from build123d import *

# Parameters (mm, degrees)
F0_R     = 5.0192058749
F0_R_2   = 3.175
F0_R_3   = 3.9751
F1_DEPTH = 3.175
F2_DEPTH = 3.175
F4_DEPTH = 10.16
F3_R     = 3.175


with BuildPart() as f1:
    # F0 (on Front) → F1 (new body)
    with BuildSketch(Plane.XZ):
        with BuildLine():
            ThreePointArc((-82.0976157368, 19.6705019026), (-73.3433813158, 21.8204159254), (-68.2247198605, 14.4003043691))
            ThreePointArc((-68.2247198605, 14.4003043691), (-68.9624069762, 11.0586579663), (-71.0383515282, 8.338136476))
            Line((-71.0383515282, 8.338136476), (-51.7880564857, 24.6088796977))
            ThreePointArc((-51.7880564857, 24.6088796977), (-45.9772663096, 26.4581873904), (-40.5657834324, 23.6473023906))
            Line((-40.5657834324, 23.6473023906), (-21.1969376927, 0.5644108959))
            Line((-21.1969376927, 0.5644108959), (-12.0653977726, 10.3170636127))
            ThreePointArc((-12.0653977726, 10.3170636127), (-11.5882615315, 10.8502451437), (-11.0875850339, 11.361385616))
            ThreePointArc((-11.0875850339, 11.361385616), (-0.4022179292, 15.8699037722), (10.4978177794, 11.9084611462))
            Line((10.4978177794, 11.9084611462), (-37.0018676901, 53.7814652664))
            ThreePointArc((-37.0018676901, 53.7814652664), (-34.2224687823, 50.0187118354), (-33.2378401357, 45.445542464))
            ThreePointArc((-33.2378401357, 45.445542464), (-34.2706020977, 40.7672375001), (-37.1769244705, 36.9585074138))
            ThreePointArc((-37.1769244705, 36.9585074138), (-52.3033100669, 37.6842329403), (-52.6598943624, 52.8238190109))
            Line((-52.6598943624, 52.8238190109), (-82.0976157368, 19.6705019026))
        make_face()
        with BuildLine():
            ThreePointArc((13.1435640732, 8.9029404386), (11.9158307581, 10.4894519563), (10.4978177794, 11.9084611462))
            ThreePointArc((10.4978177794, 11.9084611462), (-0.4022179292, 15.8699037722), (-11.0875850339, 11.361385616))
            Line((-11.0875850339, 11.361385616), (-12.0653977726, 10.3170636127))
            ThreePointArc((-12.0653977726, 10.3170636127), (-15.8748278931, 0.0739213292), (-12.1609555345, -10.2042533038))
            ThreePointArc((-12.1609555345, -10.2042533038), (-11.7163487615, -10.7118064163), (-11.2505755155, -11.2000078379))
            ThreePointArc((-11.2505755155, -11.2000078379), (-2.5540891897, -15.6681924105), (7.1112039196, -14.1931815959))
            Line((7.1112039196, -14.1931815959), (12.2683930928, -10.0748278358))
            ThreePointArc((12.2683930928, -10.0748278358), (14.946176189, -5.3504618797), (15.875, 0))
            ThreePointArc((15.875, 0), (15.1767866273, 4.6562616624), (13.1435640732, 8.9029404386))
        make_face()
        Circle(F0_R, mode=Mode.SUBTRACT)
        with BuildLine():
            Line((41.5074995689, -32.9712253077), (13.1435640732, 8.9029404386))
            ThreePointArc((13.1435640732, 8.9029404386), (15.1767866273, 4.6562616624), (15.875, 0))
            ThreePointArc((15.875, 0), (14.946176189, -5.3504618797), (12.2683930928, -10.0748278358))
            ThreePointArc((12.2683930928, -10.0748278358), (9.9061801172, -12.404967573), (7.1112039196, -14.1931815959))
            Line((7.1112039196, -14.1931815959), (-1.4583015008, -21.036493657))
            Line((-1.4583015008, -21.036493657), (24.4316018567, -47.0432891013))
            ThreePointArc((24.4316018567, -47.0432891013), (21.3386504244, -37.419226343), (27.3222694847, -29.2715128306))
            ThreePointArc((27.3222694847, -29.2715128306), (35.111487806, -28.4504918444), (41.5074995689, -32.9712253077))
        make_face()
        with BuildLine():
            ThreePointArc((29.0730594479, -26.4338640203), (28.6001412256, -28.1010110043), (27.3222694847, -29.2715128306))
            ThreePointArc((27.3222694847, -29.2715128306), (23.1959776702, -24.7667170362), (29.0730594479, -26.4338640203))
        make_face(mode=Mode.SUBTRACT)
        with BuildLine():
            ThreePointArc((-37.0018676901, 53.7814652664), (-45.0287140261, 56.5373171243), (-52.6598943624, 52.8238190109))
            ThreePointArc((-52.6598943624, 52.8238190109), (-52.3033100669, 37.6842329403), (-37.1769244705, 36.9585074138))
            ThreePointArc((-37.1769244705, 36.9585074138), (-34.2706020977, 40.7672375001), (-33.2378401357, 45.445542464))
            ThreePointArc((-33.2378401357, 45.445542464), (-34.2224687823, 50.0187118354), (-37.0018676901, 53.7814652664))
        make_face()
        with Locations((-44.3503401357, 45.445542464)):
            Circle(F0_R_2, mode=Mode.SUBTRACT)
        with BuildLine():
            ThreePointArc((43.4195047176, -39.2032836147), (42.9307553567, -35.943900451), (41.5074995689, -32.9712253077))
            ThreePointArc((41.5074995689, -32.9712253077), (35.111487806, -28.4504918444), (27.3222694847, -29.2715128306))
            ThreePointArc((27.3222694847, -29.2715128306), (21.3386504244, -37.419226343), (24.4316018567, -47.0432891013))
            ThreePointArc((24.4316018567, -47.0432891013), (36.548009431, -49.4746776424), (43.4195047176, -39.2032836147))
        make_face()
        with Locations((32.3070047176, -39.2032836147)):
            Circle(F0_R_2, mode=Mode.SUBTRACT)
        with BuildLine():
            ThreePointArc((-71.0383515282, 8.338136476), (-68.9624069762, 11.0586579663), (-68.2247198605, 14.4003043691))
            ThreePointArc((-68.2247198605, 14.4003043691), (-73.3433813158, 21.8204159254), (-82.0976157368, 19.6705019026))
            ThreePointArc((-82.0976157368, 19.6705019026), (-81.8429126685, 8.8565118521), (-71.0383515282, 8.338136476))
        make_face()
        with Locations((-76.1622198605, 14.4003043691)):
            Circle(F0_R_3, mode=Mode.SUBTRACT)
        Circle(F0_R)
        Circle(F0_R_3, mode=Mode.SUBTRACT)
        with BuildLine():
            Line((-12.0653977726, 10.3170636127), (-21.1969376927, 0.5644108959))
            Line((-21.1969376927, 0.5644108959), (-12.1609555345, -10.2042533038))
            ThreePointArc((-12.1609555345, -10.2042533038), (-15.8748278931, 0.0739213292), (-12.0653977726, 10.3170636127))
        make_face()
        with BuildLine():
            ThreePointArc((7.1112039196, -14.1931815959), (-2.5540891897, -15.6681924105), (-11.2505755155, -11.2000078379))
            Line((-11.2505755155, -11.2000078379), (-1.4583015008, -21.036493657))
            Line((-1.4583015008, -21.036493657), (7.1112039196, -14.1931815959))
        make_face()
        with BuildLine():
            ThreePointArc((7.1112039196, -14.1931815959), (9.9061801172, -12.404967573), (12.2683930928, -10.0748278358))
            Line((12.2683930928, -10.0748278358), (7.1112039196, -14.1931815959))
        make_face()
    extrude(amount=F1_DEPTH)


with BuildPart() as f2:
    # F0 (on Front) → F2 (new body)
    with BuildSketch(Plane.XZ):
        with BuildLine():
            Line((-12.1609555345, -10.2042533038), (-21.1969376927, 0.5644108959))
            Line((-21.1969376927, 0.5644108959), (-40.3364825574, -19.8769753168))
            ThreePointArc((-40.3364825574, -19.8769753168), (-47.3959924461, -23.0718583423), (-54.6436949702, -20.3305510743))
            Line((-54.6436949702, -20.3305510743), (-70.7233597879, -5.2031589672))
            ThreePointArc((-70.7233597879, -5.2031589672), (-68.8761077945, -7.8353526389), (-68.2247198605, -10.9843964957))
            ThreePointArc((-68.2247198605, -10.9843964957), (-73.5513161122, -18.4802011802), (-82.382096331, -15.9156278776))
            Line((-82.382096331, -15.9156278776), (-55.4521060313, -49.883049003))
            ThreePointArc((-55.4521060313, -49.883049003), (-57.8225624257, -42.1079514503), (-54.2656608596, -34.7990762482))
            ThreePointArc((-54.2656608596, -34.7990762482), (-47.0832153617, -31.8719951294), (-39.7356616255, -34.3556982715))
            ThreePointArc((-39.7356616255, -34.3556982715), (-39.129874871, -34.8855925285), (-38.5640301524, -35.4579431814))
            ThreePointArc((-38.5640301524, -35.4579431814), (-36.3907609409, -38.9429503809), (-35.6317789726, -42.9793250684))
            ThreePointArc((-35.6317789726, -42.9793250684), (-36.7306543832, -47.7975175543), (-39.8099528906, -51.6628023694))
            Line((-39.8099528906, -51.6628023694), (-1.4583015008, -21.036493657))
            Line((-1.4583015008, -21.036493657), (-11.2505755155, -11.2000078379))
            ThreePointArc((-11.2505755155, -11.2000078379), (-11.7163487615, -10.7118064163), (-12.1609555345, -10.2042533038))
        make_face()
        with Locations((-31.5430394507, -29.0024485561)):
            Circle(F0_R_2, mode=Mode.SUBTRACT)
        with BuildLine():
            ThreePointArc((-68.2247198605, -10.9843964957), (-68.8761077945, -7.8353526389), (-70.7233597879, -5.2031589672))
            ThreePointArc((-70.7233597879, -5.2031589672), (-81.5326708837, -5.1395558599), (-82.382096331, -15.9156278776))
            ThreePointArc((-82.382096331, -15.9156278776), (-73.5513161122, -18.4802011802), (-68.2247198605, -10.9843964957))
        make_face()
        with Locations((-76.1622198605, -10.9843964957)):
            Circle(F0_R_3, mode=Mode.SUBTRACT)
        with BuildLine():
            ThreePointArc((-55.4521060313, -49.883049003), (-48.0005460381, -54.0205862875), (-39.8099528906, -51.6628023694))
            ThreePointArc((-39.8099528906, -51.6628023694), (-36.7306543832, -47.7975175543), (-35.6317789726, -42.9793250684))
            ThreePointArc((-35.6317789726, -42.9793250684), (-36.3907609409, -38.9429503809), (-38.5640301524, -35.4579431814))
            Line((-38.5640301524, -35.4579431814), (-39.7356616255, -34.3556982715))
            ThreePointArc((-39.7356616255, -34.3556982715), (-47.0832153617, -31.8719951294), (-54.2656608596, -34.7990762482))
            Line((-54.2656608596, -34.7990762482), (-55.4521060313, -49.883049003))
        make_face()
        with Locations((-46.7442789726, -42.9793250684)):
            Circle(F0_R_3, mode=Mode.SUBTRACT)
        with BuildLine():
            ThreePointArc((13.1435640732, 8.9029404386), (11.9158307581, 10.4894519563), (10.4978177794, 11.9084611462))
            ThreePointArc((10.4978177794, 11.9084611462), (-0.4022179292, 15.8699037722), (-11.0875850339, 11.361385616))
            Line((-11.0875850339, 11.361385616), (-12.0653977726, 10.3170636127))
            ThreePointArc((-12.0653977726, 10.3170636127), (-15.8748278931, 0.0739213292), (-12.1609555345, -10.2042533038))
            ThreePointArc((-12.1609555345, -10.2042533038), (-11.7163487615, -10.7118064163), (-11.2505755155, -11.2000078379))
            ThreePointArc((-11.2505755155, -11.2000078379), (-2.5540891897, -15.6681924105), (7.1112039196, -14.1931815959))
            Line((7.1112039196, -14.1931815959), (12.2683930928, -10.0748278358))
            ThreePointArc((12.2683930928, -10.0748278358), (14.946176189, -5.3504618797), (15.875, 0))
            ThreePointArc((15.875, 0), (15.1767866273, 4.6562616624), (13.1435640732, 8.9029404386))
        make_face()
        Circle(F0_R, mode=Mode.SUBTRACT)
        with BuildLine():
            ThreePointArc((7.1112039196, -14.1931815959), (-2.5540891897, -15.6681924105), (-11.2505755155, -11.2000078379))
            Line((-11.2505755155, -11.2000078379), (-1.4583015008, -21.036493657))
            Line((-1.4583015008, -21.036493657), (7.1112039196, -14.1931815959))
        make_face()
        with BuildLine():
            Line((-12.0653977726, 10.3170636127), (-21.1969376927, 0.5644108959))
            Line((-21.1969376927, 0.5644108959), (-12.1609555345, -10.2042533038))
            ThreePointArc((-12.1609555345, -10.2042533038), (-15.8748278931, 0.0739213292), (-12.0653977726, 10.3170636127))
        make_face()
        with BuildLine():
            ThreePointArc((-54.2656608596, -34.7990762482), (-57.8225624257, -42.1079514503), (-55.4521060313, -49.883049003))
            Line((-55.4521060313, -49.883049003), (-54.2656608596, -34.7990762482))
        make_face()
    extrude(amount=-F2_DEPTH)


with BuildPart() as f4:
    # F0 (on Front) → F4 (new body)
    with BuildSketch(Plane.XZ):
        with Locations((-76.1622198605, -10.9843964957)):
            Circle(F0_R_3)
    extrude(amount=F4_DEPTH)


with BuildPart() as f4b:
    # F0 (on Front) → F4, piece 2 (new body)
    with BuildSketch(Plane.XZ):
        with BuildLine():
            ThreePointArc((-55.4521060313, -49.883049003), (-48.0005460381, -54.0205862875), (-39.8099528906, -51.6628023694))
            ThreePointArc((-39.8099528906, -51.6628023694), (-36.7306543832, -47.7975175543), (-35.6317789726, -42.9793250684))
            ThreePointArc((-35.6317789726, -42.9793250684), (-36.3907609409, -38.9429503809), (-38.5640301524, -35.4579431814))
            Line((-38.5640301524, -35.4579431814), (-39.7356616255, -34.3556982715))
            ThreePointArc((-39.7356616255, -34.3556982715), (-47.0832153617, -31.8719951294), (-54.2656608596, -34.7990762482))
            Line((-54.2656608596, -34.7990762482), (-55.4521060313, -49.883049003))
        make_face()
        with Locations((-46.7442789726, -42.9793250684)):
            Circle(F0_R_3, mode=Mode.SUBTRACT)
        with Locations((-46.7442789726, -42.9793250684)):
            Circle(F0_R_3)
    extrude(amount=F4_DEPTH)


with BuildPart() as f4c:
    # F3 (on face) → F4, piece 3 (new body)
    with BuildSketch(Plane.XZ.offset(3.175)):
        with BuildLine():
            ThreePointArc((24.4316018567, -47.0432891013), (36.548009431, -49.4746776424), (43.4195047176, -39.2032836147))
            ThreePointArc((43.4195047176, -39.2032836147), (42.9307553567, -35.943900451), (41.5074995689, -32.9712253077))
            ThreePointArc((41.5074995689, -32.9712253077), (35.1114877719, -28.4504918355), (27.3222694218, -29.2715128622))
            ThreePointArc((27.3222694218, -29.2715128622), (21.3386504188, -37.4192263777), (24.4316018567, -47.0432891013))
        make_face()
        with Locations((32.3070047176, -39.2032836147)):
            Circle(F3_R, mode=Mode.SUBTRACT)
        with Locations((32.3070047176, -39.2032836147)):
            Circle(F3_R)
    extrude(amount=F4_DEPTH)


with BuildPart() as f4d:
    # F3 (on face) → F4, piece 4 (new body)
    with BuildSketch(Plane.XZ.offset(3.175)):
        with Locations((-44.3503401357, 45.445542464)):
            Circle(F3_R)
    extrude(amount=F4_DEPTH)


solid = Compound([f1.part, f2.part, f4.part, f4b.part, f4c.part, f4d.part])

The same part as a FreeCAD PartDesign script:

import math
import FreeCAD as App
import Part
import Sketcher

V = App.Vector
Q = App.Units.Quantity

doc = App.newDocument("Part")
body = doc.addObject("PartDesign::Body", "Body")

# Sketch on XZ plane
sketch1 = doc.addObject("Sketcher::SketchObject", "Sketch")
body.addObject(sketch1)
sketch1.AttachmentSupport = (doc.XZ_Plane, [""])
sketch1.MapMode = "FlatFace"
sketch1.addGeometry([
    Part.ArcOfCircle(Part.Circle(V(0, 0, 0), V(0, 0, 1), 15.875), math.radians(-140), math.radians(-135.129053)),  # 0
    Part.LineSegment(V(-11.250576, -11.200008, 0), V(-1.458302, -21.036494, 0)),  # 1
    Part.LineSegment(V(-1.458302, -21.036494, 0), V(24.431602, -47.043289, 0)),  # 2
    Part.ArcOfCircle(Part.Circle(V(32.307005, -39.203284, 0), V(0, 0, 1), 11.1125), math.radians(-135.129053), math.radians(0)),  # 3
    Part.ArcOfCircle(Part.Circle(V(32.307005, -39.203284, 0), V(0, 0, 1), 11.1125), math.radians(0), math.radians(34.112189)),  # 4
    Part.LineSegment(V(41.5075, -32.971225, 0), V(13.143564, 8.90294, 0)),  # 5
    Part.ArcOfCircle(Part.Circle(V(0, 0, 0), V(0, 0, 1), 15.875), math.radians(34.112189), math.radians(48.602445)),  # 6
    Part.LineSegment(V(10.497818, 11.908461, 0), V(-37.001868, 53.781465, 0)),  # 7
    Part.ArcOfCircle(Part.Circle(V(-44.35034, 45.445542, 0), V(0, 0, 1), 11.1125), math.radians(48.602445), math.radians(138.397266)),  # 8
    Part.LineSegment(V(-52.659894, 52.823819, 0), V(-82.097616, 19.670502, 0)),  # 9
    Part.ArcOfCircle(Part.Circle(V(-76.16222, 14.400304, 0), V(0, 0, 1), 7.9375), math.radians(138.397266), math.radians(310.205179)),  # 10
    Part.LineSegment(V(-71.038352, 8.338136, 0), V(-51.788056, 24.60888, 0)),  # 11
    Part.ArcOfCircle(Part.Circle(V(-46.65599, 18.537012, 0), V(0, 0, 1), 7.9502), math.radians(40), math.radians(130.205179)),  # 12
    Part.LineSegment(V(-40.565783, 23.647302, 0), V(-21.196938, 0.564411, 0)),  # 13
    Part.LineSegment(V(-21.196938, 0.564411, 0), V(-12.160956, -10.204253, 0)),  # 14
    Part.Circle(V(32.307005, -39.203284, 0), V(0, 0, 1), 3.175),  # 15
    Part.ArcOfCircle(Part.Circle(V(25.898059, -26.433864, 0), V(0, 0, 1), 3.175), math.radians(-63.348021), math.radians(0)),  # 16
    Part.ArcOfCircle(Part.Circle(V(25.898059, -26.433864, 0), V(0, 0, 1), 3.175), math.radians(0), math.radians(296.651979)),  # 17
    Part.Circle(V(0, 0, 0), V(0, 0, 1), 3.9751),  # 18
    Part.Circle(V(-76.16222, 14.400304, 0), V(0, 0, 1), 3.9751),  # 19
    Part.Circle(V(-44.35034, 45.445542, 0), V(0, 0, 1), 3.175),  # 20
    Part.LineSegment(V(-11.087585, 11.361386, 0), V(-12.065398, 10.317064, 0)),  # 21
    Part.ArcOfCircle(Part.Circle(V(0, 0, 0), V(0, 0, 1), 15.875), math.radians(134.301222), math.radians(139.466407)),  # 22
], False)
sketch1.addConstraint([
    Sketcher.Constraint("Tangent", 0, 2, 1, 1),
    Sketcher.Constraint("Coincident", 1, 2, 2, 1),
    Sketcher.Constraint("Tangent", 2, 2, 3, 1),
    Sketcher.Constraint("Tangent", 3, 2, 4, 1),
    Sketcher.Constraint("Tangent", 4, 2, 5, 1),
    Sketcher.Constraint("Tangent", 5, 2, 6, 1),
    Sketcher.Constraint("Tangent", 6, 2, 7, 1),
    Sketcher.Constraint("Tangent", 7, 2, 8, 1),
    Sketcher.Constraint("Tangent", 8, 2, 9, 1),
    Sketcher.Constraint("Tangent", 9, 2, 10, 1),
    Sketcher.Constraint("Tangent", 10, 2, 11, 1),
    Sketcher.Constraint("Tangent", 11, 2, 12, 2),
    Sketcher.Constraint("Tangent", 12, 1, 13, 1),
    Sketcher.Constraint("Coincident", 13, 2, 14, 1),
    Sketcher.Constraint("Tangent", 14, 2, 0, 1),
    Sketcher.Constraint("Tangent", 16, 1, 17, 2),
    Sketcher.Constraint("Coincident", 17, 1, 16, 2),
    Sketcher.Constraint("Coincident", 21, 1, 22, 1),
    Sketcher.Constraint("Coincident", 22, 2, 21, 2),
    Sketcher.Constraint("Coincident", 0, 3, -1, 1),
    Sketcher.Constraint("Coincident", 6, 3, -1, 1),
    Sketcher.Constraint("Coincident", 18, 3, -1, 1),
    Sketcher.Constraint("Coincident", 22, 3, -1, 1),
    Sketcher.Constraint("Coincident", 15, 3, 3, 3),
    Sketcher.Constraint("Coincident", 19, 3, 10, 3),
    Sketcher.Constraint("Coincident", 20, 3, 8, 3),
    Sketcher.Constraint("Equal", 3, 4),
    Sketcher.Constraint("Equal", 0, 6),
    Sketcher.Constraint("Equal", 4, 8),
    Sketcher.Constraint("Equal", 15, 16),
    Sketcher.Constraint("Equal", 18, 19),
    Sketcher.Constraint("Equal", 17, 20),
    Sketcher.Constraint("Equal", 6, 22),
    Sketcher.Constraint("Parallel", 1, 2),
    Sketcher.Constraint("Parallel", 13, 14),
    Sketcher.Constraint("Horizontal", 15, 3, 3, 2),
    Sketcher.Constraint("Horizontal", 16, 3, 17, 1),
    Sketcher.Constraint("Diameter", 15, Q("0.25 in")),
    Sketcher.Constraint("Diameter", 18, Q("0.313 in")),
    Sketcher.Constraint("Angle", 13, Q("-50 deg")),
    Sketcher.Constraint("Radius", 0, Q("0.625 in")),
    Sketcher.Constraint("Radius", 3, Q("0.4375 in")),
    Sketcher.Constraint("Radius", 10, Q("0.3125 in")),
    Sketcher.Constraint("Radius", 12, Q("0.313 in")),
    Sketcher.Constraint("DistanceX", -1, 1, 6, 2, Q("0.4132999 in")),
    Sketcher.Constraint("DistanceX", 11, 2, -1, 1, Q("2.0388999 in")),
    Sketcher.Constraint("Distance", 2, 36.696601),
    Sketcher.Constraint("DistanceX", 1, 2, -1, 1, 1.458302),
    Sketcher.Constraint("DistanceX", -1, 1, 2, 2, 24.431602),
    Sketcher.Constraint("DistanceY", -1, 1, 9, 2, 19.670502),
    Sketcher.Constraint("Distance", 21, 1.430638),
    Sketcher.Constraint("DistanceX", 8, 3, -1, 1, 44.35034),
    Sketcher.Constraint("DistanceX", 10, 3, -1, 1, 76.16222),
    Sketcher.Constraint("DistanceX", -1, 1, 16, 3, 25.898059),
    Sketcher.Constraint("DistanceY", -1, 1, 13, 2, 0.564411),
    Sketcher.Constraint("DistanceX", -1, 1, 16, 1, 27.322269),
    Sketcher.Constraint("DistanceY", 4, 3, 16, 3, 12.76942),
    Sketcher.Constraint("DistanceX", 13, 2, 22, 2, 9.13154),
])
pad1 = doc.addObject("PartDesign::Pad", "Pad")
body.addObject(pad1)
pad1.Profile = sketch1
pad1.Length = Q("0.125 in")
body2 = doc.addObject("PartDesign::Body", "Body001")

# Sketch on XZ plane
sketch2 = doc.addObject("Sketcher::SketchObject", "Sketch001")
body2.addObject(sketch2)
sketch2.AttachmentSupport = (doc.getObject("XZ_Plane001"), [""])
sketch2.MapMode = "FlatFace"
sketch2.addGeometry([
    Part.LineSegment(V(-82.382096, -15.915628, 0), V(-55.452106, -49.883049, 0)),  # 0
    Part.ArcOfCircle(Part.Circle(V(-46.744279, -42.979325, 0), V(0, 0, 1), 11.1125), math.radians(-141.591978), math.radians(-51.39034)),  # 1
    Part.LineSegment(V(-39.809953, -51.662802, 0), V(-1.458302, -21.036494, 0)),  # 2
    Part.LineSegment(V(-1.458302, -21.036494, 0), V(12.268393, -10.074828, 0)),  # 3
    Part.ArcOfCircle(Part.Circle(V(0, 0, 0), V(0, 0, 1), 15.875), math.radians(-39.392905), math.radians(0)),  # 4
    Part.ArcOfCircle(Part.Circle(V(0, 0, 0), V(0, 0, 1), 15.875), math.radians(0), math.radians(34.112189)),  # 5
    Part.ArcOfCircle(Part.Circle(V(0, 0, 0), V(0, 0, 1), 15.875), math.radians(34.112189), math.radians(48.602445)),  # 6
    Part.ArcOfCircle(Part.Circle(V(0, 0, 0), V(0, 0, 1), 15.875), math.radians(48.602445), math.radians(134.301222)),  # 7
    Part.LineSegment(V(-11.087585, 11.361386, 0), V(-12.065398, 10.317064, 0)),  # 8
    Part.LineSegment(V(-12.065398, 10.317064, 0), V(-21.196938, 0.564411, 0)),  # 9
    Part.LineSegment(V(-21.196938, 0.564411, 0), V(-40.336483, -19.876975, 0)),  # 10
    Part.ArcOfCircle(Part.Circle(V(-47.716339, -12.967116, 0), V(0, 0, 1), 10.109818), math.radians(-133.252181), math.radians(-43.116185)),  # 11
    Part.LineSegment(V(-54.643695, -20.330551, 0), V(-70.72336, -5.203159, 0)),  # 12
    Part.ArcOfCircle(Part.Circle(V(-76.16222, -10.984396, 0), V(0, 0, 1), 7.9375), math.radians(46.747819), math.radians(218.408022)),  # 13
    Part.Circle(V(-46.744279, -42.979325, 0), V(0, 0, 1), 3.9751),  # 14
    Part.ArcOfCircle(Part.Circle(V(-46.744279, -42.979325, 0), V(0, 0, 1), 11.1125), math.radians(42.597182), math.radians(50.898456)),  # 15
    Part.LineSegment(V(-38.56403, -35.457943, 0), V(-39.735662, -34.355698, 0)),  # 16
    Part.Circle(V(-31.543039, -29.002449, 0), V(0, 0, 1), 3.175),  # 17
    Part.Circle(V(-76.16222, -10.984396, 0), V(0, 0, 1), 3.9751),  # 18
    Part.Circle(V(0, 0, 0), V(0, 0, 1), 5.019206),  # 19
], False)
sketch2.addConstraint([
    Sketcher.Constraint("Coincident", 0, 2, 1, 1),
    Sketcher.Constraint("Coincident", 1, 2, 2, 1),
    Sketcher.Constraint("Coincident", 2, 2, 3, 1),
    Sketcher.Constraint("Coincident", 3, 2, 4, 1),
    Sketcher.Constraint("Coincident", 4, 2, 5, 1),
    Sketcher.Constraint("Coincident", 5, 2, 6, 1),
    Sketcher.Constraint("Coincident", 6, 2, 7, 1),
    Sketcher.Constraint("Coincident", 7, 2, 8, 1),
    Sketcher.Constraint("Coincident", 8, 2, 9, 1),
    Sketcher.Constraint("Coincident", 9, 2, 10, 1),
    Sketcher.Constraint("Coincident", 10, 2, 11, 2),
    Sketcher.Constraint("Coincident", 11, 1, 12, 1),
    Sketcher.Constraint("Coincident", 12, 2, 13, 1),
    Sketcher.Constraint("Coincident", 13, 2, 0, 1),
    Sketcher.Constraint("Coincident", 15, 1, 16, 1),
    Sketcher.Constraint("Coincident", 16, 2, 15, 2),
    Sketcher.Constraint("Coincident", 4, 3, -1, 1),
    Sketcher.Constraint("Coincident", 5, 3, -1, 1),
    Sketcher.Constraint("Coincident", 6, 3, -1, 1),
    Sketcher.Constraint("Coincident", 7, 3, -1, 1),
    Sketcher.Constraint("Coincident", 19, 3, -1, 1),
    Sketcher.Constraint("Coincident", 14, 3, 1, 3),
    Sketcher.Constraint("Coincident", 15, 3, 1, 3),
    Sketcher.Constraint("Coincident", 18, 3, 13, 3),
    Sketcher.Constraint("PointOnObject", 4, 2, -1),
    Sketcher.Constraint("Diameter", 17, Q("0.25 in")),
    Sketcher.Constraint("Diameter", 14, Q("0.313 in")),
    Sketcher.Constraint("Diameter", 18, Q("0.313 in")),
    Sketcher.Constraint("Radius", 1, Q("0.4375 in")),
    Sketcher.Constraint("Radius", 4, Q("0.625 in")),
    Sketcher.Constraint("Radius", 13, Q("0.3125 in")),
    Sketcher.Constraint("Radius", 15, Q("0.4375 in")),
    Sketcher.Constraint("Diameter", 19, 10.038412),
    Sketcher.Constraint("Radius", 11, 10.109818),
    Sketcher.Constraint("DistanceX", -1, 1, 6, 2, Q("0.4132999 in")),
    Sketcher.Constraint("DistanceY", 0, 2, 15, 3, Q("0.2718002 in")),
    Sketcher.Constraint("DistanceX", 2, 2, -1, 1, 1.458302),
    Sketcher.Constraint("DistanceY", 16, 2, -1, 1, 34.355698),
    Sketcher.Constraint("DistanceX", 11, 3, 17, 3, 16.1733),
    Sketcher.Constraint("DistanceY", 0, 2, 17, 3, 20.8806),
    Sketcher.Constraint("DistanceX", 13, 2, 11, 1, 27.738401),
    Sketcher.Constraint("Distance", 0, 43.34755),
    Sketcher.Constraint("Distance", 2, 49.079731),
    Sketcher.Constraint("Distance", 8, 1.430638),
    Sketcher.Constraint("Distance", 9, 13.360361),
    Sketcher.Constraint("Distance", 10, 28.003079),
    Sketcher.Constraint("Distance", 16, 1.608622),
    Sketcher.Constraint("DistanceX", 1, 3, -1, 1, 46.744279),
    Sketcher.Constraint("DistanceX", 11, 3, -1, 1, 47.716339),
    Sketcher.Constraint("DistanceX", 13, 3, -1, 1, 76.16222),
    Sketcher.Constraint("DistanceY", 17, 3, -1, 1, 29.002449),
    Sketcher.Constraint("DistanceY", -1, 1, 5, 2, 8.90294),
    Sketcher.Constraint("DistanceY", -1, 1, 9, 2, 0.564411),
    Sketcher.Constraint("DistanceY", 11, 1, -1, 1, 20.330551),
    Sketcher.Constraint("DistanceX", 12, 2, -1, 1, 70.72336),
    Sketcher.Constraint("DistanceY", 12, 2, -1, 1, 5.203159),
    Sketcher.Constraint("DistanceX", 9, 2, 8, 2, 9.13154),
    Sketcher.Constraint("DistanceY", 10, 2, 11, 3, 6.909859),
    Sketcher.Constraint("Distance", 3, 17.566453),
    Sketcher.Constraint("DistanceX", 1, 2, -1, 1, 39.809953),
])
pad2 = doc.addObject("PartDesign::Pad", "Pad001")
body2.addObject(pad2)
pad2.Profile = sketch2
pad2.Length = Q("0.125 in")
pad2.Reversed = True
body3 = doc.addObject("PartDesign::Body", "Body002")

# Sketch on XZ plane
sketch3 = doc.addObject("Sketcher::SketchObject", "Sketch002")
body3.addObject(sketch3)
sketch3.AttachmentSupport = (doc.getObject("XZ_Plane002"), [""])
sketch3.MapMode = "FlatFace"
sketch3.addGeometry(Part.Circle(V(-76.16222, -10.984396, 0), V(0, 0, 1), 3.9751), False)
sketch3.addConstraint([
    Sketcher.Constraint("Diameter", 0, Q("0.313 in")),
    Sketcher.Constraint("DistanceX", 0, 3, -1, 1, 76.16222),
    Sketcher.Constraint("DistanceY", 0, 3, -1, 1, 10.984396),
])
pad3 = doc.addObject("PartDesign::Pad", "Pad002")
body3.addObject(pad3)
pad3.Profile = sketch3
pad3.Length = Q("0.4 in")
body4 = doc.addObject("PartDesign::Body", "Body003")

# Sketch on XZ plane
sketch4 = doc.addObject("Sketcher::SketchObject", "Sketch003")
body4.addObject(sketch4)
sketch4.AttachmentSupport = (doc.getObject("XZ_Plane003"), [""])
sketch4.MapMode = "FlatFace"
sketch4.addGeometry([
    Part.ArcOfCircle(Part.Circle(V(-46.744279, -42.979325, 0), V(0, 0, 1), 11.1125), math.radians(-141.591978), math.radians(-51.39034)),  # 0
    Part.ArcOfCircle(Part.Circle(V(-46.744279, -42.979325, 0), V(0, 0, 1), 11.1125), math.radians(-51.39034), math.radians(0)),  # 1
    Part.ArcOfCircle(Part.Circle(V(-46.744279, -42.979325, 0), V(0, 0, 1), 11.1125), math.radians(0), math.radians(42.597182)),  # 2
    Part.LineSegment(V(-38.56403, -35.457943, 0), V(-39.735662, -34.355698, 0)),  # 3
    Part.ArcOfCircle(Part.Circle(V(-46.744279, -42.979325, 0), V(0, 0, 1), 11.1125), math.radians(50.898456), math.radians(132.597182)),  # 4
    Part.LineSegment(V(-54.265661, -34.799076, 0), V(-55.452106, -49.883049, 0)),  # 5
], False)
sketch4.addConstraint([
    Sketcher.Constraint("Tangent", 0, 2, 1, 1),
    Sketcher.Constraint("Tangent", 1, 2, 2, 1),
    Sketcher.Constraint("Coincident", 2, 2, 3, 1),
    Sketcher.Constraint("Coincident", 3, 2, 4, 1),
    Sketcher.Constraint("Coincident", 4, 2, 5, 1),
    Sketcher.Constraint("Coincident", 5, 2, 0, 1),
    Sketcher.Constraint("Coincident", 2, 3, 0, 3),
    Sketcher.Constraint("Coincident", 4, 3, 0, 3),
    Sketcher.Constraint("Equal", 2, 4),
    Sketcher.Constraint("Horizontal", 4, 3, 1, 2),
    Sketcher.Constraint("Radius", 0, Q("0.4375 in")),
    Sketcher.Constraint("DistanceY", 5, 2, 4, 3, Q("0.2718002 in")),
    Sketcher.Constraint("DistanceY", 3, 2, -1, 1, 34.355698),
    Sketcher.Constraint("DistanceX", 4, 2, 3, 2, 14.529999),
    Sketcher.Constraint("Distance", 3, 1.608622),
    Sketcher.Constraint("Distance", 5, 15.130561),
    Sketcher.Constraint("DistanceX", 0, 3, -1, 1, 46.744279),
    Sketcher.Constraint("DistanceX", 0, 2, -1, 1, 39.809953),
])
pad4 = doc.addObject("PartDesign::Pad", "Pad003")
body4.addObject(pad4)
pad4.Profile = sketch4
pad4.Length = Q("0.4 in")
body5 = doc.addObject("PartDesign::Body", "Body004")

# Sketch on XZ plane
sketch5 = doc.addObject("Sketcher::SketchObject", "Sketch004")
body5.addObject(sketch5)
sketch5.AttachmentSupport = (doc.getObject("XZ_Plane004"), [""])
sketch5.MapMode = "FlatFace"
sketch5.AttachmentOffset = App.Placement(V(0, 0, 0.125 * 25.4), App.Rotation())
sketch5.addGeometry([
    Part.ArcOfCircle(Part.Circle(V(32.307005, -39.203284, 0), V(0, 0, 1), 11.1125), math.radians(-135.129053), math.radians(0)),
    Part.ArcOfCircle(Part.Circle(V(32.307005, -39.203284, 0), V(0, 0, 1), 11.1125), math.radians(0), math.radians(34.112189)),
    Part.ArcOfCircle(Part.Circle(V(32.307005, -39.203284, 0), V(0, 0, 1), 11.1125), math.radians(34.112189), math.radians(116.65198)),
    Part.ArcOfCircle(Part.Circle(V(32.307005, -39.203284, 0), V(0, 0, 1), 11.1125), math.radians(116.65198), math.radians(224.870947)),
], False)
sketch5.addConstraint([
    Sketcher.Constraint("Tangent", 0, 2, 1, 1),
    Sketcher.Constraint("Tangent", 1, 2, 2, 1),
    Sketcher.Constraint("Tangent", 2, 2, 3, 1),
    Sketcher.Constraint("Tangent", 3, 2, 0, 1),
    Sketcher.Constraint("Equal", 0, 1),
    Sketcher.Constraint("Horizontal", 3, 3, 0, 2),
    Sketcher.Constraint("Radius", 0, Q("0.4375 in")),
    Sketcher.Constraint("DistanceX", -1, 1, 1, 2, 41.5075),
    Sketcher.Constraint("DistanceX", -1, 1, 3, 2, 24.431602),
    Sketcher.Constraint("DistanceX", -1, 1, 2, 2, 27.322269),
    Sketcher.Constraint("DistanceY", 3, 2, -1, 1, 47.043289),
    Sketcher.Constraint("DistanceY", 0, 2, 1, 2, 6.232058),
])
pad5 = doc.addObject("PartDesign::Pad", "Pad004")
body5.addObject(pad5)
pad5.Profile = sketch5
pad5.Length = Q("0.4 in")
body6 = doc.addObject("PartDesign::Body", "Body005")

# Sketch on XZ plane
sketch6 = doc.addObject("Sketcher::SketchObject", "Sketch005")
body6.addObject(sketch6)
sketch6.AttachmentSupport = (doc.getObject("XZ_Plane005"), [""])
sketch6.MapMode = "FlatFace"
sketch6.AttachmentOffset = App.Placement(V(0, 0, 0.125 * 25.4), App.Rotation())
sketch6.addGeometry(Part.Circle(V(-44.35034, 45.445542, 0), V(0, 0, 1), 3.175), False)
sketch6.addConstraint([
    Sketcher.Constraint("Diameter", 0, Q("0.25 in")),
    Sketcher.Constraint("DistanceX", 0, 3, -1, 1, 44.35034),
    Sketcher.Constraint("DistanceY", -1, 1, 0, 3, 45.445542),
])
pad6 = doc.addObject("PartDesign::Pad", "Pad005")
body6.addObject(pad6)
pad6.Profile = sketch6
pad6.Length = Q("0.4 in")

doc.recompute()
